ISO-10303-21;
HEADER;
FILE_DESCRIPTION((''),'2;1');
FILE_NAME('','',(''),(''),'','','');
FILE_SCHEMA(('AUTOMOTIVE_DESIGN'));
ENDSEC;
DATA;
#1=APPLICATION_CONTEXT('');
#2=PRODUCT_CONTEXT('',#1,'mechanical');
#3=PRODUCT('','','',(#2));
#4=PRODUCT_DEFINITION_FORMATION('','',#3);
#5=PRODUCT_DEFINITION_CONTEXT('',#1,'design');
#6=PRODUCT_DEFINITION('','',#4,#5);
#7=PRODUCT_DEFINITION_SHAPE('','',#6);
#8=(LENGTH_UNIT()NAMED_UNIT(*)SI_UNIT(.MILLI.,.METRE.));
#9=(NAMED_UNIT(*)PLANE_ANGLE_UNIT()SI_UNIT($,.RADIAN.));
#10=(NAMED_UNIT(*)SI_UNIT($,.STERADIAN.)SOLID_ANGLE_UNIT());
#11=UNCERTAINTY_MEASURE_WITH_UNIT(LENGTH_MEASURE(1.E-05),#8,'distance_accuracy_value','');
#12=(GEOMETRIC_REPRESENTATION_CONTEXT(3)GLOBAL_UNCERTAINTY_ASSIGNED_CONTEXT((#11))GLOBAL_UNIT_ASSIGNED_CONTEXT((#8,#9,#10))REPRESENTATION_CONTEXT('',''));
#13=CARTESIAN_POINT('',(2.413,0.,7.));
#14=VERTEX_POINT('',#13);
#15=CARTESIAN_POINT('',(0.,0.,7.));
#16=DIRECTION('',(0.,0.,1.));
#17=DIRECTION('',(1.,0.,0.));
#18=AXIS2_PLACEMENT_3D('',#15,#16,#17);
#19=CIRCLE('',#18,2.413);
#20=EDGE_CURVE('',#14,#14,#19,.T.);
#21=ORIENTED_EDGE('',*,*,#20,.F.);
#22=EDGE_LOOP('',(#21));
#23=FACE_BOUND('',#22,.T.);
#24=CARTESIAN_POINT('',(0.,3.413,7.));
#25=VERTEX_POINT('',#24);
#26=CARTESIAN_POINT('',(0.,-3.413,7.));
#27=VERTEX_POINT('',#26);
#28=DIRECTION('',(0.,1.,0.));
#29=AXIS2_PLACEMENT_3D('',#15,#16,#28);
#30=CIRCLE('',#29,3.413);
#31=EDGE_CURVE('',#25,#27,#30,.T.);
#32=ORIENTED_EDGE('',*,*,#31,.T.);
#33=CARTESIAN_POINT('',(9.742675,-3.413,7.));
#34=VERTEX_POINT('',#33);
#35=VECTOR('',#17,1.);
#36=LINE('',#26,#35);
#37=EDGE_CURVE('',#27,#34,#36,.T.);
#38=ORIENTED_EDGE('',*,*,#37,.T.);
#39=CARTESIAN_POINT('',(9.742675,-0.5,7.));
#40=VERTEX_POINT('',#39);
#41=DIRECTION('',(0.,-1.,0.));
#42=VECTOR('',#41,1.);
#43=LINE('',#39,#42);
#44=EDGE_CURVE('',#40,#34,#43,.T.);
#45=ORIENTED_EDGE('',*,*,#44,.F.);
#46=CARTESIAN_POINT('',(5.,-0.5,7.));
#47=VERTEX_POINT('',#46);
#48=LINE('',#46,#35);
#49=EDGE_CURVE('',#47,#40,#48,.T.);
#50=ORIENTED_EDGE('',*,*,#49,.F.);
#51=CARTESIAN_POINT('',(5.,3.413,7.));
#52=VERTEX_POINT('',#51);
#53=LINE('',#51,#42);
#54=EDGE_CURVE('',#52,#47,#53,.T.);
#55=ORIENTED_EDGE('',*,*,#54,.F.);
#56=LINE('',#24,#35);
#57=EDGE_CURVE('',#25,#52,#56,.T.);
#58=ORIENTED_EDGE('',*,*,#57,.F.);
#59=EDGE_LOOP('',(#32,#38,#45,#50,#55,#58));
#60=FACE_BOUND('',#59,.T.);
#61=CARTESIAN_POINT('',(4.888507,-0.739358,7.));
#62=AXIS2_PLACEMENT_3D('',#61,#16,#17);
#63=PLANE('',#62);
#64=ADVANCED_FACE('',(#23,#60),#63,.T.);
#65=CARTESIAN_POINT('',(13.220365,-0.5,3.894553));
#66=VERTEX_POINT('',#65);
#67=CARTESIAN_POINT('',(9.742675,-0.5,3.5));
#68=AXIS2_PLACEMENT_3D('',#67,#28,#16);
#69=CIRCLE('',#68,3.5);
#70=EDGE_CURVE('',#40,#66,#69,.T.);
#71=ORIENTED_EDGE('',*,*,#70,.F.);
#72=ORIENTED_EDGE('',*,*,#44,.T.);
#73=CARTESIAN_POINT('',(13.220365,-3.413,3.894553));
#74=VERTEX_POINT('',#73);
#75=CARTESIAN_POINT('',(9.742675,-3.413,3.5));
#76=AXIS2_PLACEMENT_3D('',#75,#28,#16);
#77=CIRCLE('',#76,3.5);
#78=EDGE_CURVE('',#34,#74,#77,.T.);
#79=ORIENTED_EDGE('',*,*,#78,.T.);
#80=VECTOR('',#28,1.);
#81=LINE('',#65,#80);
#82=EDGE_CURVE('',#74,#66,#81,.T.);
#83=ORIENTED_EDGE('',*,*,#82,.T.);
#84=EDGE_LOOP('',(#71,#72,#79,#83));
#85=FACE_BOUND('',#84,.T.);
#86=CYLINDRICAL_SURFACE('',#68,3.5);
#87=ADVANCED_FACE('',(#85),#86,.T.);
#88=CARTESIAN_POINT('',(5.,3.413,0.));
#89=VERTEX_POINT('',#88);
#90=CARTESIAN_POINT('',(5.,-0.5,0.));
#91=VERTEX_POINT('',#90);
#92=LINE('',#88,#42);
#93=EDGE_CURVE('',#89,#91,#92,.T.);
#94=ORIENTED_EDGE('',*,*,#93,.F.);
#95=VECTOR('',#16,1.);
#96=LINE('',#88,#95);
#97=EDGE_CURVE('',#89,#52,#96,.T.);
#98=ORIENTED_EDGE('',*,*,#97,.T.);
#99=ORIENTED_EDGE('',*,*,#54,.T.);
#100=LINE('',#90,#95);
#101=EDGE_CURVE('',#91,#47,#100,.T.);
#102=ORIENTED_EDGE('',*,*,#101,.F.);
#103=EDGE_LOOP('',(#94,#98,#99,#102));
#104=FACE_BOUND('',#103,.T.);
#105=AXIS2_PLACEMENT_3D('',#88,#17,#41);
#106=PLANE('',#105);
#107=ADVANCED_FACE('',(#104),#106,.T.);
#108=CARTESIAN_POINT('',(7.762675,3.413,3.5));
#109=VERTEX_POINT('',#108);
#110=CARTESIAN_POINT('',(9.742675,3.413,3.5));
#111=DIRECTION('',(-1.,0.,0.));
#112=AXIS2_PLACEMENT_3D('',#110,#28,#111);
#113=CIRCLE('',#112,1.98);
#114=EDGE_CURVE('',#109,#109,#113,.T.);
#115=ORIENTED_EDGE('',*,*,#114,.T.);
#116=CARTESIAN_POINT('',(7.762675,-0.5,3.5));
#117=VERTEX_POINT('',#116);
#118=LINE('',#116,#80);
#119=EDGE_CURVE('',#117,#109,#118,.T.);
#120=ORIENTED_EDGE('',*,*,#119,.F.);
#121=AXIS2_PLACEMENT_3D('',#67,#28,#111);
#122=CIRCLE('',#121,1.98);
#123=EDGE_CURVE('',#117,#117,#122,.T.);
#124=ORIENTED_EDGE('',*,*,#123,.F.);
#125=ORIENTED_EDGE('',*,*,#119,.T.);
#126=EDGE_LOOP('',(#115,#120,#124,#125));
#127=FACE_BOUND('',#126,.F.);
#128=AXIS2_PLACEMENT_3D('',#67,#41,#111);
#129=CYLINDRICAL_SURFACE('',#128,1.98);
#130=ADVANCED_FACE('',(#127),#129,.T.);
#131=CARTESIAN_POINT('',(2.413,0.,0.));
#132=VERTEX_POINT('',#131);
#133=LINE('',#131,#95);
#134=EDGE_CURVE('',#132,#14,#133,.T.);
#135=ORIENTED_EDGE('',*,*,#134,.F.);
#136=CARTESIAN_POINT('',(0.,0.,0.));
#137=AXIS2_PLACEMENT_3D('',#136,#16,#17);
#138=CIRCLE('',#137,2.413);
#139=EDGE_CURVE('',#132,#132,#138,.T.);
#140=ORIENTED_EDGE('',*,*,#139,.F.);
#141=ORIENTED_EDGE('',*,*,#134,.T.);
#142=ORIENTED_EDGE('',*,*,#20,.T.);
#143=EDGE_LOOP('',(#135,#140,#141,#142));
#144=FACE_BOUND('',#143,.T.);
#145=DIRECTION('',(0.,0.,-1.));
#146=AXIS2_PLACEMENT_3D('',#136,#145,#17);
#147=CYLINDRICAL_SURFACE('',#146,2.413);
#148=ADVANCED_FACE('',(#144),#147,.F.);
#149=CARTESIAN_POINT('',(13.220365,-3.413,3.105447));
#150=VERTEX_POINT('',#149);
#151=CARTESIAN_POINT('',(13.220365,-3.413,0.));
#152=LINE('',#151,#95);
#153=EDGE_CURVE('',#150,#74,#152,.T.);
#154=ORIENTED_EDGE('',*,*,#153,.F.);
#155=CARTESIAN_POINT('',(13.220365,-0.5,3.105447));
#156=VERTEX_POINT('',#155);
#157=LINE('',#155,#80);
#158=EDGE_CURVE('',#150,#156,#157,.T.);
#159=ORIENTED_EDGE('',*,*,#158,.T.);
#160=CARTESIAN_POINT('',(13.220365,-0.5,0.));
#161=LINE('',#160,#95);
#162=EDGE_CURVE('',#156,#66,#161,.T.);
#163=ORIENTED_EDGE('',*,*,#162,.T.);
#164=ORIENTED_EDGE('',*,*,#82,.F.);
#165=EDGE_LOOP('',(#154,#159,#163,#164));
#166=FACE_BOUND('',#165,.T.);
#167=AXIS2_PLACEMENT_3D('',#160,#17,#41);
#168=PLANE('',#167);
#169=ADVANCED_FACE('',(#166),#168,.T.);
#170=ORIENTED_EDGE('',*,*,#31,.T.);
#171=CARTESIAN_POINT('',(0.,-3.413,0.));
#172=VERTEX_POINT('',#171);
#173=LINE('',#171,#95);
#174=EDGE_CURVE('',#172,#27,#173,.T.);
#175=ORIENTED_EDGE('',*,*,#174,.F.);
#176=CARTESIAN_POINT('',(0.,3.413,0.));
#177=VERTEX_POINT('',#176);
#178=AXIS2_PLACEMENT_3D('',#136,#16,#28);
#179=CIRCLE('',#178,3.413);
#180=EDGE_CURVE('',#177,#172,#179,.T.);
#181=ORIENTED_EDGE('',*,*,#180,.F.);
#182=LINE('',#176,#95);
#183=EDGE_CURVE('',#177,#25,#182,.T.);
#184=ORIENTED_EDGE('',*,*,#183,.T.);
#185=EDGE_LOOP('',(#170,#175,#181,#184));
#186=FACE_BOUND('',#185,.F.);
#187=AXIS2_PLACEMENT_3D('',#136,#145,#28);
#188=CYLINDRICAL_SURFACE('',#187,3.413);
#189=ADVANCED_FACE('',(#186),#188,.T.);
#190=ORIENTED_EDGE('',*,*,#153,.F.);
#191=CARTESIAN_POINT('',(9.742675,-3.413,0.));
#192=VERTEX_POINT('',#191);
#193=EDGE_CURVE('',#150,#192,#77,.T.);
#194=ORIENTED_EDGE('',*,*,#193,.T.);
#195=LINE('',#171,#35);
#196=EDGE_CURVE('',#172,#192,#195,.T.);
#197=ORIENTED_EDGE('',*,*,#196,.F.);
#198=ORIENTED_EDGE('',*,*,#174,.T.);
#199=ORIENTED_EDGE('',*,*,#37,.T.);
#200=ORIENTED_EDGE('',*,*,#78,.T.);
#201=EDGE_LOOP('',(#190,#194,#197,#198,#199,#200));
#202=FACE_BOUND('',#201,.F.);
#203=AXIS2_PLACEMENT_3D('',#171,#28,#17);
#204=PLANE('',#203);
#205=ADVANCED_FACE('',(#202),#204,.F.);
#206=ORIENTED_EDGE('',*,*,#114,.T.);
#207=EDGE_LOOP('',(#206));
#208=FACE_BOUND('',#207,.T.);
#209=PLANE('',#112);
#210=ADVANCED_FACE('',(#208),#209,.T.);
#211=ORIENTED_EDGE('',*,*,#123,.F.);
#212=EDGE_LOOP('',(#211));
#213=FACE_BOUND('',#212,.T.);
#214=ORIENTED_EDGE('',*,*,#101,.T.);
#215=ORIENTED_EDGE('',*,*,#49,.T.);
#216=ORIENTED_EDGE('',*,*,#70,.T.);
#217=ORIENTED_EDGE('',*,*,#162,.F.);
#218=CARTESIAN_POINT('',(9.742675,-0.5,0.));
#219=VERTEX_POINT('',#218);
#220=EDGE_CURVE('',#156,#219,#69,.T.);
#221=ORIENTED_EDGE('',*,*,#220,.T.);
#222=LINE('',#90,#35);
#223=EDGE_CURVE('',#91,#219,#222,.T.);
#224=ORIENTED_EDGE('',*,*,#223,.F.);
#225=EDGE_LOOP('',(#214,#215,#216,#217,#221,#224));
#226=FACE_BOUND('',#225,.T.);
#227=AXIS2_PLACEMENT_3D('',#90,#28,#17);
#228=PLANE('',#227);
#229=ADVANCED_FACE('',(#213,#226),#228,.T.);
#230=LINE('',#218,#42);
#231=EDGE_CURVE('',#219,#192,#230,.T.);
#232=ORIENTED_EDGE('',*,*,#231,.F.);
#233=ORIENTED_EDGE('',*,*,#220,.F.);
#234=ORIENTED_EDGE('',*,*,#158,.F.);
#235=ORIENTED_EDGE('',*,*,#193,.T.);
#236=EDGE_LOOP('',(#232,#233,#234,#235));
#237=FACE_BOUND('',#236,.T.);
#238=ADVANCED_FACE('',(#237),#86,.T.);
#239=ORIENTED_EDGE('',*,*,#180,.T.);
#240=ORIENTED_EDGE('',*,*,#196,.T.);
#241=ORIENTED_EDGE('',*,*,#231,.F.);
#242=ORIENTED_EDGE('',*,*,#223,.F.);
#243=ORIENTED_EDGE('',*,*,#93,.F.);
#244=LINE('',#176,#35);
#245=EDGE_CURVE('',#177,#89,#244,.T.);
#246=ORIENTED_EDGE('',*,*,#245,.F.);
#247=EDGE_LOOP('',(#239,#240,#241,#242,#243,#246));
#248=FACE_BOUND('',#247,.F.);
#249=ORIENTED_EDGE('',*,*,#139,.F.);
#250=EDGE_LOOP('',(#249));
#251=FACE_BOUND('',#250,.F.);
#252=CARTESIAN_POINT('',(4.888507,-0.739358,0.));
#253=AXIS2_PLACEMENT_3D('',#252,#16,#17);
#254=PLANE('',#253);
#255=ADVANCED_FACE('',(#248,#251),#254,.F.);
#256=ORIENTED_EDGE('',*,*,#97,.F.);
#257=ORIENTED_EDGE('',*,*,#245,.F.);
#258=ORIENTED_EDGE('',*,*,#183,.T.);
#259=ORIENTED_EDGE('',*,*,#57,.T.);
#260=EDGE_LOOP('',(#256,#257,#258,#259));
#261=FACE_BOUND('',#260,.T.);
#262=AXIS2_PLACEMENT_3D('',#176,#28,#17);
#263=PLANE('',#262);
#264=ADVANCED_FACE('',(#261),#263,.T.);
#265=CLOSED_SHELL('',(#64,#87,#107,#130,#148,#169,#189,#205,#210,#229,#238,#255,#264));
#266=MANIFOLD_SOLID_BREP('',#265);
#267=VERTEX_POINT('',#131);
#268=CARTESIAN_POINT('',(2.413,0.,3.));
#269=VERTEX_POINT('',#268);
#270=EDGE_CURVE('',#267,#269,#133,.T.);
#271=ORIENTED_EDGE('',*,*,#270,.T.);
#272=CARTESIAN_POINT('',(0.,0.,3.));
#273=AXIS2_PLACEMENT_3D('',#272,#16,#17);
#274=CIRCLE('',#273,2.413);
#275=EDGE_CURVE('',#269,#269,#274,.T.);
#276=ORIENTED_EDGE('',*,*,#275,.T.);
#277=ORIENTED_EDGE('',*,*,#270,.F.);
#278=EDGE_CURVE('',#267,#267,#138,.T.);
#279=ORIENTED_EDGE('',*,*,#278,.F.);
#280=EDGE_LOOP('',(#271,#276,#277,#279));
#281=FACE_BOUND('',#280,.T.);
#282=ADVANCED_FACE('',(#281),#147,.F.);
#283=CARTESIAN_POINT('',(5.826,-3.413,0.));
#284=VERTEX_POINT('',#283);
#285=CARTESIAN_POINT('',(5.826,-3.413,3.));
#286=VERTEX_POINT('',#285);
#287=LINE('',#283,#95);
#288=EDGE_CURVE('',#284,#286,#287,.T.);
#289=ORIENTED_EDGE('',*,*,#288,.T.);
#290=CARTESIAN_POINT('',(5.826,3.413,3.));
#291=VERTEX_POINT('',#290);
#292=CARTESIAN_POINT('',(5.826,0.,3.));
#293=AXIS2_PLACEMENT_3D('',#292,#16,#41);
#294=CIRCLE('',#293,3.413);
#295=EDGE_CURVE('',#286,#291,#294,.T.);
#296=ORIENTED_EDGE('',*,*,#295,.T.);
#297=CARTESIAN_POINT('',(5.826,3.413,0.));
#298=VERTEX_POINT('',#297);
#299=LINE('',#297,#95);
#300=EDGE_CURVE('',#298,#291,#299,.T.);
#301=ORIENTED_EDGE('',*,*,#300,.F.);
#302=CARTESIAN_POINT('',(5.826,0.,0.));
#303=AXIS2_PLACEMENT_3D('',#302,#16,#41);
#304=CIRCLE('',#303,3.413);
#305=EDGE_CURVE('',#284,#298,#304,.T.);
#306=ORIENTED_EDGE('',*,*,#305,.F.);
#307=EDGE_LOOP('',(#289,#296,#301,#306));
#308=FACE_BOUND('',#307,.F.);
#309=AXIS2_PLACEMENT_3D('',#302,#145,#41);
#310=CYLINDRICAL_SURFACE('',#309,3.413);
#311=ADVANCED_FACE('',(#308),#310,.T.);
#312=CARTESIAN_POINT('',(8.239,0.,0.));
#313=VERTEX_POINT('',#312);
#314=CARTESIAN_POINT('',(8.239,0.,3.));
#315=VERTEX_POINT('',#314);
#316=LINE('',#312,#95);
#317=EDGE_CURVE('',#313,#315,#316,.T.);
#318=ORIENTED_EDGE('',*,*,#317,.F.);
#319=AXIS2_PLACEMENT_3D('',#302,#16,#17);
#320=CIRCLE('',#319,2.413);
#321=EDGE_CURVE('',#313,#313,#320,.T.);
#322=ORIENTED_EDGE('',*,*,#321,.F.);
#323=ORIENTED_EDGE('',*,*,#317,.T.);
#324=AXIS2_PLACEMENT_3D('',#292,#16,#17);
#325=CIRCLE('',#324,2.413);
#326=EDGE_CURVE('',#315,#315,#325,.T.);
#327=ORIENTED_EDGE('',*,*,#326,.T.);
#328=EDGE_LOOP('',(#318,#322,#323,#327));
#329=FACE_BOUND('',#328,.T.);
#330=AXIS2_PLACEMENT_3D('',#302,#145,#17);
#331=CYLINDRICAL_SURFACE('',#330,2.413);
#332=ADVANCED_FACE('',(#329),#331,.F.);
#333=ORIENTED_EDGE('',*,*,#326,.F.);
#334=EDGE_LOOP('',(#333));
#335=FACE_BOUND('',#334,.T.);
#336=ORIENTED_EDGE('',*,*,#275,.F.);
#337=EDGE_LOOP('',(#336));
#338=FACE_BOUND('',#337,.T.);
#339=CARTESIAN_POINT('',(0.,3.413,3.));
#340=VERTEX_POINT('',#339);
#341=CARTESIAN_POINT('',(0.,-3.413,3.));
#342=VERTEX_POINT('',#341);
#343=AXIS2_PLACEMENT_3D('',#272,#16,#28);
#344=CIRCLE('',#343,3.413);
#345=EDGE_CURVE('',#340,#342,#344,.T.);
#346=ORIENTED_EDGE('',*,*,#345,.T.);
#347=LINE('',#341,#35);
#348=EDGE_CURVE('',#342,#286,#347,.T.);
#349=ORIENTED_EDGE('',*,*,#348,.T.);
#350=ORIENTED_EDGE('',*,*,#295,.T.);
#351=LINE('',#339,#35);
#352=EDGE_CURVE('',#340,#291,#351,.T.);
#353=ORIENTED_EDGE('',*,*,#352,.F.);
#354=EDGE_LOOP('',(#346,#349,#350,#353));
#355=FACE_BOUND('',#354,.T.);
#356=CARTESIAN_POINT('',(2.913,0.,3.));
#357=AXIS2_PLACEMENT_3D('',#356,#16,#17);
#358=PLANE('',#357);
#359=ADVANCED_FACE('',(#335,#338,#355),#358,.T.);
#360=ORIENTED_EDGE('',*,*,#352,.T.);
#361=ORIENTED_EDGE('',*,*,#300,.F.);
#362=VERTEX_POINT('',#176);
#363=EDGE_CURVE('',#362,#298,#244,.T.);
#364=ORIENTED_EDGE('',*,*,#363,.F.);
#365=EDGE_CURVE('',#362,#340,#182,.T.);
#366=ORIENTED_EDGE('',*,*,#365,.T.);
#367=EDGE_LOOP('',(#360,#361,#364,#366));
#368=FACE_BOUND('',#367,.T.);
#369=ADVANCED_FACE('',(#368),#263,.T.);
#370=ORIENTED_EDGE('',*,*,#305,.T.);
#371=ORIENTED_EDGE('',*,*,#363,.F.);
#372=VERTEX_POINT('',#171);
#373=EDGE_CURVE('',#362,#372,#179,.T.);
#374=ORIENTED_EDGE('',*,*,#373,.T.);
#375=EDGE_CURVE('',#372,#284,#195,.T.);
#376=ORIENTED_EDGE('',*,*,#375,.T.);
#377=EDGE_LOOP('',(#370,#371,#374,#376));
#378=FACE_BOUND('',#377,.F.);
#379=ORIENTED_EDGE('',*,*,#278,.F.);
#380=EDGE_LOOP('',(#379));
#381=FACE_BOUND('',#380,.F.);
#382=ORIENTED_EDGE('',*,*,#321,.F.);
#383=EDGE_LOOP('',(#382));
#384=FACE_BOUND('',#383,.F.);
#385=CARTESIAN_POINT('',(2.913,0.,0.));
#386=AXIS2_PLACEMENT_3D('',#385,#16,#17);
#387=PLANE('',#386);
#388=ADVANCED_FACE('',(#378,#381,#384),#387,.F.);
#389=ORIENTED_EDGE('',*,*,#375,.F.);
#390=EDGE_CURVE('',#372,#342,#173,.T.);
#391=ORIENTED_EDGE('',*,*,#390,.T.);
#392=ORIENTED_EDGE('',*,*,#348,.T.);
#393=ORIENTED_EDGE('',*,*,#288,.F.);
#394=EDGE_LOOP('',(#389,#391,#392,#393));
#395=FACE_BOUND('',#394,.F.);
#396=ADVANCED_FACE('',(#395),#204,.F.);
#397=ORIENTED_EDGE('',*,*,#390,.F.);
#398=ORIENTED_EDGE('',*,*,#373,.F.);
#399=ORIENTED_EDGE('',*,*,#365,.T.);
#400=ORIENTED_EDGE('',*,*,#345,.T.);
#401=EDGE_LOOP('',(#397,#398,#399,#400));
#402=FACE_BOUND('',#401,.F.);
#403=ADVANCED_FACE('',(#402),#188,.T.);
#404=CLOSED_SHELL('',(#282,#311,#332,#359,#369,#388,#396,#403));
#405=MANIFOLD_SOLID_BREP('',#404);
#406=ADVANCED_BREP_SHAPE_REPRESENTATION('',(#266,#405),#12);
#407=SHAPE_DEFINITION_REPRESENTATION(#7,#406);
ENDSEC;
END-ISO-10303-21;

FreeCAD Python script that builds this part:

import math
import FreeCAD as App
import Part
import Sketcher
Q = App.Units.Quantity

doc = App.newDocument("Part")
body = doc.addObject("PartDesign::Body", "Body")

# Sketch on XY plane
sketch1 = body.newObject("Sketcher::SketchObject", "Sketch")
sketch1.AttachmentSupport = (doc.getObject("XY_Plane"), [""])
sketch1.MapMode = "FlatFace"
sketch1.addGeometry(Part.ArcOfCircle(Part.Circle(App.Vector(0, 0, 0), App.Vector(0, 0, 1), 3.4), math.radians(90), math.radians(270)), False)
sketch1.addGeometry(Part.LineSegment(App.Vector(0, -3.4, 0), App.Vector(5.8, -3.4, 0)), False)
sketch1.addGeometry(Part.ArcOfCircle(Part.Circle(App.Vector(5.8, 0, 0), App.Vector(0, 0, 1), 3.4), math.radians(-90), math.radians(90)), False)
sketch1.addGeometry(Part.LineSegment(App.Vector(5.8, 3.4, 0), App.Vector(0, 3.4, 0)), False)
sketch1.addGeometry(Part.Circle(App.Vector(0, 0, 0), App.Vector(0, 0, 1), 2.4), False)
sketch1.addGeometry(Part.Circle(App.Vector(5.8, 0, 0), App.Vector(0, 0, 1), 2.4), False)
sketch1.addConstraint(Sketcher.Constraint("Tangent", 0, 2, 1, 1))
sketch1.addConstraint(Sketcher.Constraint("Tangent", 1, 2, 2, 1))
sketch1.addConstraint(Sketcher.Constraint("Tangent", 2, 2, 3, 1))
sketch1.addConstraint(Sketcher.Constraint("Tangent", 3, 2, 0, 1))
sketch1.addConstraint(Sketcher.Constraint("Horizontal", 1))
sketch1.addConstraint(Sketcher.Constraint("Horizontal", 3))
sketch1.addConstraint(Sketcher.Constraint("Coincident", 0, 3, -1, 1))
sketch1.addConstraint(Sketcher.Constraint("Coincident", 4, 3, -1, 1))
sketch1.addConstraint(Sketcher.Constraint("Coincident", 5, 3, 2, 3))
sketch1.addConstraint(Sketcher.Constraint("Equal", 4, 5))
sketch1.addConstraint(Sketcher.Constraint("Diameter", 4, Q("4.826 mm")))
sketch1.addConstraint(Sketcher.Constraint("Radius", 0, Q("3.413 mm")))
sketch1.addConstraint(Sketcher.Constraint("DistanceX", 1, 1, 1, 2, Q("5.826 mm")))
pad1 = body.newObject("PartDesign::Pad", "Pad")
pad1.Profile = sketch1
pad1.Length = 3
body2 = doc.addObject("PartDesign::Body", "Body001")

# Sketch on XY plane
sketch2 = body2.newObject("Sketcher::SketchObject", "Sketch001")
sketch2.AttachmentSupport = (doc.getObject("XY_Plane001"), [""])
sketch2.MapMode = "FlatFace"
sketch2.addGeometry(Part.ArcOfCircle(Part.Circle(App.Vector(0, 0, 0), App.Vector(0, 0, 1), 3.4), math.radians(90), math.radians(270)), False)
sketch2.addGeometry(Part.LineSegment(App.Vector(0, -3.4, 0), App.Vector(13.2, -3.4, 0)), False)
sketch2.addGeometry(Part.LineSegment(App.Vector(13.2, -3.4, 0), App.Vector(13.2, -0.5, 0)), False)
sketch2.addGeometry(Part.LineSegment(App.Vector(13.2, -0.5, 0), App.Vector(5, -0.5, 0)), False)
sketch2.addGeometry(Part.LineSegment(App.Vector(5, -0.5, 0), App.Vector(5, 3.4, 0)), False)
sketch2.addGeometry(Part.LineSegment(App.Vector(5, 3.4, 0), App.Vector(0, 3.4, 0)), False)
sketch2.addGeometry(Part.Circle(App.Vector(0, 0, 0), App.Vector(0, 0, 1), 2.4), False)
sketch2.addConstraint(Sketcher.Constraint("Tangent", 0, 2, 1, 1))
sketch2.addConstraint(Sketcher.Constraint("Coincident", 1, 2, 2, 1))
sketch2.addConstraint(Sketcher.Constraint("Coincident", 2, 2, 3, 1))
sketch2.addConstraint(Sketcher.Constraint("Coincident", 3, 2, 4, 1))
sketch2.addConstraint(Sketcher.Constraint("Coincident", 4, 2, 5, 1))
sketch2.addConstraint(Sketcher.Constraint("Tangent", 5, 2, 0, 1))
sketch2.addConstraint(Sketcher.Constraint("Horizontal", 1))
sketch2.addConstraint(Sketcher.Constraint("Vertical", 2))
sketch2.addConstraint(Sketcher.Constraint("Horizontal", 3))
sketch2.addConstraint(Sketcher.Constraint("Vertical", 4))
sketch2.addConstraint(Sketcher.Constraint("Horizontal", 5))
sketch2.addConstraint(Sketcher.Constraint("Coincident", 0, 3, -1, 1))
sketch2.addConstraint(Sketcher.Constraint("Coincident", 6, 3, -1, 1))
sketch2.addConstraint(Sketcher.Constraint("DistanceX", 5, 2, 5, 1, Q("5 mm")))
sketch2.addConstraint(Sketcher.Constraint("Diameter", 6, Q("4.826 mm")))
sketch2.addConstraint(Sketcher.Constraint("Radius", 0, Q("3.413 mm")))
sketch2.addConstraint(Sketcher.Constraint("DistanceY", 2, 2, -1, 1, Q("0.5 mm")))
sketch2.addConstraint(Sketcher.Constraint("DistanceX", 1, 1, 1, 2, Q("13.220365 mm")))
pad2 = body2.newObject("PartDesign::Pad", "Pad001")
pad2.Profile = sketch2
pad2.Length = 7

# Sketch on XZ plane
sketch3 = body2.newObject("Sketcher::SketchObject", "Sketch002")
sketch3.AttachmentSupport = (doc.getObject("XZ_Plane001"), [""])
sketch3.MapMode = "FlatFace"
sketch3.AttachmentOffset = App.Placement(App.Vector(0, 0, 0.5), App.Rotation())
sketch3.addGeometry(Part.ArcOfCircle(Part.Circle(App.Vector(9.7, 3.5, 0), App.Vector(0, 0, 1), 3.5), math.radians(-90), math.radians(90)), False)
sketch3.addGeometry(Part.LineSegment(App.Vector(9.7, 7, 0), App.Vector(14.2, 7, 0)), False)
sketch3.addGeometry(Part.LineSegment(App.Vector(14.2, 7, 0), App.Vector(14.2, 0, 0)), False)
sketch3.addGeometry(Part.LineSegment(App.Vector(14.2, 0, 0), App.Vector(9.7, 0, 0)), False)
sketch3.addConstraint(Sketcher.Constraint("Tangent", 0, 2, 1, 1))
sketch3.addConstraint(Sketcher.Constraint("Coincident", 1, 2, 2, 1))
sketch3.addConstraint(Sketcher.Constraint("Coincident", 2, 2, 3, 1))
sketch3.addConstraint(Sketcher.Constraint("Tangent", 3, 2, 0, 1))
sketch3.addConstraint(Sketcher.Constraint("Horizontal", 1))
sketch3.addConstraint(Sketcher.Constraint("Vertical", 2))
sketch3.addConstraint(Sketcher.Constraint("Horizontal", 3))
sketch3.addConstraint(Sketcher.Constraint("PointOnObject", 2, 2, -1))
sketch3.addConstraint(Sketcher.Constraint("Radius", 0, Q("3.5 mm")))
sketch3.addConstraint(Sketcher.Constraint("DistanceX", 1, 1, 1, 2, Q("4.423893 mm")))
sketch3.addConstraint(Sketcher.Constraint("DistanceX", -1, 1, 0, 3, Q("9.742675 mm")))
pocket1 = body2.newObject("PartDesign::Pocket", "Pocket")
pocket1.Profile = sketch3
pocket1.Length = 5
pocket1.Reversed = True

# Sketch on XZ plane
sketch4 = body2.newObject("Sketcher::SketchObject", "Sketch003")
sketch4.AttachmentSupport = (doc.getObject("XZ_Plane001"), [""])
sketch4.MapMode = "FlatFace"
sketch4.AttachmentOffset = App.Placement(App.Vector(0, 0, 0.5), App.Rotation())
sketch4.addGeometry(Part.Circle(App.Vector(9.7, 3.5, 0), App.Vector(0, 0, 1), 2), False)
sketch4.addConstraint(Sketcher.Constraint("Diameter", 0, Q("3.96 mm")))
sketch4.addConstraint(Sketcher.Constraint("DistanceY", -1, 1, 0, 3, Q("3.5 mm")))
sketch4.addConstraint(Sketcher.Constraint("DistanceX", -1, 1, 0, 3, Q("9.742675 mm")))
pad3 = body2.newObject("PartDesign::Pad", "Pad002")
pad3.Profile = sketch4
pad3.Length = 3.913
pad3.Reversed = True

doc.recompute()
